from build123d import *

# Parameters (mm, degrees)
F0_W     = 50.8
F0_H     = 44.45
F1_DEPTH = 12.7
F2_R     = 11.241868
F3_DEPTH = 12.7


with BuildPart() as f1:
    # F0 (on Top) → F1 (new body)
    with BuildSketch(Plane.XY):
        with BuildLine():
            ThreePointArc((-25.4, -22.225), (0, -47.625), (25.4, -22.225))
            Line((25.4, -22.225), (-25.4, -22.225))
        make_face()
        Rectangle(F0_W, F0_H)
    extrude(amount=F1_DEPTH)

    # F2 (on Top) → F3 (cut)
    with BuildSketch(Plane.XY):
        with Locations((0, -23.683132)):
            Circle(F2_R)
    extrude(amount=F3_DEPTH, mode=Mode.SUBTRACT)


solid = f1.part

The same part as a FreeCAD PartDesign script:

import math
import FreeCAD as App
import Part
import Sketcher
Q = App.Units.Quantity

doc = App.newDocument("Part")
body = doc.addObject("PartDesign::Body", "Body")

# Sketch on XY plane
sketch1 = body.newObject("Sketcher::SketchObject", "Sketch")
sketch1.AttachmentSupport = (doc.getObject("XY_Plane"), [""])
sketch1.MapMode = "FlatFace"
sketch1.addGeometry([
    Part.ArcOfCircle(Part.Circle(App.Vector(0, -22.225, 0), App.Vector(0, 0, 1), 25.4), math.radians(180), math.radians(360)),
    Part.LineSegment(App.Vector(25.4, -22.225, 0), App.Vector(25.4, 22.225, 0)),
    Part.LineSegment(App.Vector(25.4, 22.225, 0), App.Vector(-25.4, 22.225, 0)),
    Part.LineSegment(App.Vector(-25.4, 22.225, 0), App.Vector(-25.4, -22.225, 0)),
], False)
sketch1.addConstraint([
    Sketcher.Constraint("Tangent", 0, 2, 1, 1),
    Sketcher.Constraint("Coincident", 1, 2, 2, 1),
    Sketcher.Constraint("Coincident", 2, 2, 3, 1),
    Sketcher.Constraint("Tangent", 3, 2, 0, 1),
    Sketcher.Constraint("Vertical", 1),
    Sketcher.Constraint("Horizontal", 2),
    Sketcher.Constraint("Vertical", 3),
    Sketcher.Constraint("Symmetric", 0, 2, 2, 2, -1, 1),
    Sketcher.Constraint("Radius", 0, Q("1 in")),
    Sketcher.Constraint("DistanceY", 1, 1, 1, 2, Q("1.75 in")),
])
pad1 = body.newObject("PartDesign::Pad", "Pad")
pad1.Profile = sketch1
pad1.Length = Q("0.5 in")

# Sketch on XY plane
sketch2 = body.newObject("Sketcher::SketchObject", "Sketch001")
sketch2.AttachmentSupport = (doc.getObject("XY_Plane"), [""])
sketch2.MapMode = "FlatFace"
sketch2.addGeometry(Part.Circle(App.Vector(0, -23.683132, 0), App.Vector(0, 0, 1), 11.241868), False)
sketch2.addConstraint([
    Sketcher.Constraint("PointOnObject", 0, 3, -2),
    Sketcher.Constraint("Diameter", 0, Q("22.483736 mm")),
    Sketcher.Constraint("DistanceY", 0, 3, -1, 1, Q("23.683132 mm")),
])
pocket1 = body.newObject("PartDesign::Pocket", "Pocket")
pocket1.Profile = sketch2
pocket1.Length = Q("0.5 in")
pocket1.Reversed = True

doc.recompute()
